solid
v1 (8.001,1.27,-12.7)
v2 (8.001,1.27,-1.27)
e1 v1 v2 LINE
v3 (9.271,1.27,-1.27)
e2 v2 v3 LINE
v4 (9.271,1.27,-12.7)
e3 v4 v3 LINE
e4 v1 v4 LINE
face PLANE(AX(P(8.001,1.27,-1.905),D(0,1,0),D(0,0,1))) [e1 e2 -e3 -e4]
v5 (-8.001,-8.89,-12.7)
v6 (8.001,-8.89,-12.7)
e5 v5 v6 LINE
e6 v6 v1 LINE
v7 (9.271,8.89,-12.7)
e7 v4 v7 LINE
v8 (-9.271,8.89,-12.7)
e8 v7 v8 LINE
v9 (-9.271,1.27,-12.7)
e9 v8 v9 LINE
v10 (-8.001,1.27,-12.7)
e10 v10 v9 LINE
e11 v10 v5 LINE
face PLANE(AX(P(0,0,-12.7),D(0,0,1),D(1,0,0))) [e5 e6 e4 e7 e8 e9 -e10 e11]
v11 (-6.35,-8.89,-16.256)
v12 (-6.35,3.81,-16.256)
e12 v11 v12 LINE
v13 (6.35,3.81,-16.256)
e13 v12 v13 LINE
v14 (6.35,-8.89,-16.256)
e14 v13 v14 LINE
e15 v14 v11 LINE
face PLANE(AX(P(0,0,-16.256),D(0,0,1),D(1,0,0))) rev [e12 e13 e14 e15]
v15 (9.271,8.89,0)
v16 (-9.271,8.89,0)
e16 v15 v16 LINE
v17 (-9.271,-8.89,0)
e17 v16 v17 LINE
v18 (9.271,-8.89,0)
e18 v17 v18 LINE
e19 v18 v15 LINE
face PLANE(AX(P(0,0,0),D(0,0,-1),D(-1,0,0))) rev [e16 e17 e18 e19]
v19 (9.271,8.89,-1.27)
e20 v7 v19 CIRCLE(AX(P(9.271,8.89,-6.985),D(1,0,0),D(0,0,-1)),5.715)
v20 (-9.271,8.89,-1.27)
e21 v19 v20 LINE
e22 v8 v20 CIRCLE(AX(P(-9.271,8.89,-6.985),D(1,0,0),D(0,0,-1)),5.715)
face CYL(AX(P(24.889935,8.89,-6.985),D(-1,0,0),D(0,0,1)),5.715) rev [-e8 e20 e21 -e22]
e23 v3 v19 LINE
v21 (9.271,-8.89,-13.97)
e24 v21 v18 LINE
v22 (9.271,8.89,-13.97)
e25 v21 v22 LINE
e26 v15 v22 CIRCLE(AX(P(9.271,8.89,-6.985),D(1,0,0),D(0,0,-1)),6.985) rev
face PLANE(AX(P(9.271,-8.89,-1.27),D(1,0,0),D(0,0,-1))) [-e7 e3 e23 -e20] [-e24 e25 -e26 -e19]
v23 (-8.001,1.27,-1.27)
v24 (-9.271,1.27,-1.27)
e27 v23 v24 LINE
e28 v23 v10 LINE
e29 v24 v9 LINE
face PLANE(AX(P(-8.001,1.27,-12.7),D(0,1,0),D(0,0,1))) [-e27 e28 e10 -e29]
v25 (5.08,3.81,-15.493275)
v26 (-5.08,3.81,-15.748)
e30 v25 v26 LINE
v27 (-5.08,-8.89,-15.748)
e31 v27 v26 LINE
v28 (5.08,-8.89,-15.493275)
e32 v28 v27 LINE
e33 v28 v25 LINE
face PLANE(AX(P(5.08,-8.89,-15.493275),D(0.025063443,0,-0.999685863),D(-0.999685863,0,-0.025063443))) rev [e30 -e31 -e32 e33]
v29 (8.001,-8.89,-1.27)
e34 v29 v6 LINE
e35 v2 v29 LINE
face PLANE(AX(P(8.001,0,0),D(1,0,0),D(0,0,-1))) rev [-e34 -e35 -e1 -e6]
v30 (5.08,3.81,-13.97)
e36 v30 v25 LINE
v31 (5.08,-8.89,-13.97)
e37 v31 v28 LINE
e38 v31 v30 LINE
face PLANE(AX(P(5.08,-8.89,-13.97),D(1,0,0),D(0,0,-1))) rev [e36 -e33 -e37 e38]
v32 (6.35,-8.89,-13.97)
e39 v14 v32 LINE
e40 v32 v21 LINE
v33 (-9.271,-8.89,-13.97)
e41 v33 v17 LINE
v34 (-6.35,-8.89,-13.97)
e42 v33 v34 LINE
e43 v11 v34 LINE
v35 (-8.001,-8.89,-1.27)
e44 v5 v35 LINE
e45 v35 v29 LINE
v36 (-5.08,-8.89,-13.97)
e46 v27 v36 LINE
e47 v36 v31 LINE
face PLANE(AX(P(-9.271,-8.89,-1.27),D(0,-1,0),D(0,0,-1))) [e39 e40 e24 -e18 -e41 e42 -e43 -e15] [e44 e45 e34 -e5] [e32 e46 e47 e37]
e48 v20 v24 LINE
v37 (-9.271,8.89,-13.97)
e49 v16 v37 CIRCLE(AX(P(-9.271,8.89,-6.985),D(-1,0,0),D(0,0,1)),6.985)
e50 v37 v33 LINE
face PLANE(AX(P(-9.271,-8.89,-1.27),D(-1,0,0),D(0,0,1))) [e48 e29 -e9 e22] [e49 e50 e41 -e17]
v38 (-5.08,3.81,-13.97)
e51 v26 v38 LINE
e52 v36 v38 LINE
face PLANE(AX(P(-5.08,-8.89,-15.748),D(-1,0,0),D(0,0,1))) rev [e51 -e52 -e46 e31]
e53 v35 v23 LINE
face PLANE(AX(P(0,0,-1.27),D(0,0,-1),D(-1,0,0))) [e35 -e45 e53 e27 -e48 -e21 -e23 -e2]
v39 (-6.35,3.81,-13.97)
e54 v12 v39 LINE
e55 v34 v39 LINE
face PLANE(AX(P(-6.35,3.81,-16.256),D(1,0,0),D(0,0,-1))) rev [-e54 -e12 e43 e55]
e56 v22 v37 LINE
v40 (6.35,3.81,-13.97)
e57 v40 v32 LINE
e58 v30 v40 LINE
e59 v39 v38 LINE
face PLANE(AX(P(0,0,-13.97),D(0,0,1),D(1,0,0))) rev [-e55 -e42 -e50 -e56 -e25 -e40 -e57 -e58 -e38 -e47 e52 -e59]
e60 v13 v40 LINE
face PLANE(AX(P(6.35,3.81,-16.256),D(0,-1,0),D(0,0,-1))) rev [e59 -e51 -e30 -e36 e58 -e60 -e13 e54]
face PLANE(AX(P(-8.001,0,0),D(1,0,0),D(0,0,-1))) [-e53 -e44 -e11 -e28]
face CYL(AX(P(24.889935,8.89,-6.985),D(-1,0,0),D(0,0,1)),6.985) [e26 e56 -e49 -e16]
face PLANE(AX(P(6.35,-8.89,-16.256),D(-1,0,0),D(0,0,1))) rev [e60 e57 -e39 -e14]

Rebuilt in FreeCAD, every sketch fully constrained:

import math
import FreeCAD as App
import Part
import Sketcher

V = App.Vector
Q = App.Units.Quantity


def add_polygon(sketch, points):
    """Adds a closed chain of lines whose ends are joined by coincident constraints."""
    first, n = sketch.GeometryCount, len(points)
    for a, b in zip(points, points[1:] + points[:1]):
        sketch.addGeometry(Part.LineSegment(App.Vector(*a, 0), App.Vector(*b, 0)), False)
    for i in range(n):
        sketch.addConstraint(Sketcher.Constraint("Coincident", first + i, 2, first + (i + 1) % n, 1))

doc = App.newDocument("Part")
params = doc.addObject("Spreadsheet::Sheet", "Params")
for row, (alias, value) in enumerate([
    ("sketch1_height", "0.7 in"),
    ("sketch1_width", "0.73 in"),
    ("pad1_length", "0.05 in"),
    ("sketch2_height", "0.7 in"),
    ("sketch2_width", "0.73 in"),
    ("pad2_length", "0.05 in"),
    ("sketch3_radius", "0.225 in"),
    ("sketch3_radius2", "0.275 in"),
    ("pad3_length", "0.73 in"),
    ("sketch4_width", "0.4 in"),
    ("sketch4_height", "0.45 in"),
    ("pad4_length", "0.05 in"),
    ("sketch5_width", "0.5 in"),
    ("pad5_length", "0.09 in"),
    ("sketch6_width", "0.4 in"),
    ("sketch6_height", "0.07 in"),
    ("sketch7_width", "0.4 in"),
    ("sketch7_height", "0.45 in"),
    ("pad6_length", "0.05 in"),
], start=1):
    params.set(f"A{row}", alias)
    params.set(f"B{row}", "=" + value)
    params.setAlias(f"B{row}", alias)

body = doc.addObject("PartDesign::Body", "Body")

# Sketch on XY plane
sketch1 = body.newObject("Sketcher::SketchObject", "Sketch")
sketch1.AttachmentSupport = (doc.getObject("XY_Plane"), [""])
sketch1.MapMode = "FlatFace"
add_polygon(sketch1, [(-9, 9), (-9, -9), (9, -9), (9, 9)])  # lines 0-3
sketch1.addConstraint([
    Sketcher.Constraint("Vertical", 0),
    Sketcher.Constraint("Horizontal", 1),
    Sketcher.Constraint("Vertical", 2),
    Sketcher.Constraint("Horizontal", 3),
    Sketcher.Constraint("Symmetric", 0, 2, 2, 2, -1, 1),
    Sketcher.Constraint("DistanceY", 0, 2, 0, 1, Q("0.7 in")),
    Sketcher.Constraint("DistanceX", 1, 1, 1, 2, Q("0.73 in")),
])
sketch1.setExpression("Constraints[9]", "Params.sketch1_height")
sketch1.setExpression("Constraints[10]", "Params.sketch1_width")
pad1 = body.newObject("PartDesign::Pad", "Pad")
pad1.Profile = sketch1
pad1.setExpression("Length", "Params.pad1_length")
pad1.Reversed = True
body2 = doc.addObject("PartDesign::Body", "Body001")

# Sketch on XY plane
sketch2 = body2.newObject("Sketcher::SketchObject", "Sketch001")
sketch2.AttachmentSupport = (doc.getObject("XY_Plane001"), [""])
sketch2.MapMode = "FlatFace"
sketch2.AttachmentOffset = App.Placement(V(0, 0, -0.55 * 25.4), App.Rotation())
add_polygon(sketch2, [(-9, 9), (-9, -9), (9, -9), (9, 9)])  # lines 0-3
sketch2.addConstraint([
    Sketcher.Constraint("Vertical", 0),
    Sketcher.Constraint("Horizontal", 1),
    Sketcher.Constraint("Vertical", 2),
    Sketcher.Constraint("Horizontal", 3),
    Sketcher.Constraint("Symmetric", 0, 2, 2, 2, -1, 1),
    Sketcher.Constraint("DistanceY", 0, 2, 0, 1, Q("0.7 in")),
    Sketcher.Constraint("DistanceX", 1, 1, 1, 2, Q("0.73 in")),
])
sketch2.setExpression("Constraints[9]", "Params.sketch2_height")
sketch2.setExpression("Constraints[10]", "Params.sketch2_width")
pad2 = body2.newObject("PartDesign::Pad", "Pad001")
pad2.Profile = sketch2
pad2.setExpression("Length", "Params.pad2_length")
body.AllowCompound = True
doc.recompute()

boolean = body.newObject("PartDesign::Boolean", "Boolean")
boolean.Type = "Fuse"
boolean.addObjects([body2])

# Sketch on YZ plane
sketch3 = body.newObject("Sketcher::SketchObject", "Sketch002")
sketch3.AttachmentSupport = (doc.getObject("YZ_Plane"), [""])
sketch3.MapMode = "FlatFace"
sketch3.AttachmentOffset = App.Placement(V(0, 0, -0.365 * 25.4), App.Rotation())
sketch3.addGeometry([
    Part.LineSegment(V(8.9, -14, 0), V(8.9, -12.7, 0)),
    Part.ArcOfCircle(Part.Circle(V(8.9, -7, 0), V(0, 0, 1), 5.7), math.radians(-90), math.radians(90)),
    Part.LineSegment(V(8.9, -1.3, 0), V(8.9, 0, 0)),
    Part.ArcOfCircle(Part.Circle(V(8.9, -7, 0), V(0, 0, 1), 7), math.radians(-90), math.radians(90)),
], False)
sketch3.addConstraint([
    Sketcher.Constraint("Coincident", 0, 2, 1, 1),
    Sketcher.Constraint("Coincident", 1, 2, 2, 1),
    Sketcher.Constraint("Coincident", 2, 2, 3, 2),
    Sketcher.Constraint("Coincident", 3, 1, 0, 1),
    Sketcher.Constraint("Vertical", 0),
    Sketcher.Constraint("Vertical", 2),
    Sketcher.Constraint("Coincident", 3, 3, 1, 3),
    Sketcher.Constraint("PointOnObject", 2, 2, -1),
    Sketcher.Constraint("Vertical", 3, 3, 0, 2),
    Sketcher.Constraint("Vertical", 0, 2, 1, 2),
    Sketcher.Constraint("Radius", 1, Q("0.225 in")),
    Sketcher.Constraint("Radius", 3, Q("0.275 in")),
    Sketcher.Constraint("DistanceX", -1, 1, 1, 3, Q("0.35 in")),
])
sketch3.setExpression("Constraints[10]", "Params.sketch3_radius")
sketch3.setExpression("Constraints[11]", "Params.sketch3_radius2")
pad3 = body.newObject("PartDesign::Pad", "Pad002")
pad3.Profile = sketch3
pad3.setExpression("Length", "Params.pad3_length")

# Sketch on YZ plane
sketch4 = body.newObject("Sketcher::SketchObject", "Sketch003")
sketch4.AttachmentSupport = (doc.getObject("YZ_Plane"), [""])
sketch4.MapMode = "FlatFace"
sketch4.AttachmentOffset = App.Placement(V(0, 0, -0.365 * 25.4), App.Rotation())
add_polygon(sketch4, [(1, -13), (-9, -13), (-9, -1), (1, -1)])  # lines 0-3
sketch4.addConstraint([
    Sketcher.Constraint("Horizontal", 0),
    Sketcher.Constraint("Vertical", 1),
    Sketcher.Constraint("Horizontal", 2),
    Sketcher.Constraint("Vertical", 3),
    Sketcher.Constraint("DistanceX", 0, 2, 0, 1, Q("0.4 in")),
    Sketcher.Constraint("DistanceY", 1, 1, 1, 2, Q("0.45 in")),
    Sketcher.Constraint("DistanceY", 0, 2, -1, 1, Q("0.5 in")),
    Sketcher.Constraint("DistanceX", 0, 2, -1, 1, Q("0.35 in")),
])
sketch4.setExpression("Constraints[8]", "Params.sketch4_width")
sketch4.setExpression("Constraints[9]", "Params.sketch4_height")
pad4 = body.newObject("PartDesign::Pad", "Pad003")
pad4.Profile = sketch4
pad4.setExpression("Length", "Params.pad4_length")

# Sketch on XY plane
sketch5 = body.newObject("Sketcher::SketchObject", "Sketch004")
sketch5.AttachmentSupport = (doc.getObject("XY_Plane"), [""])
sketch5.MapMode = "FlatFace"
sketch5.AttachmentOffset = App.Placement(V(0, 0, -0.55 * 25.4), App.Rotation())
add_polygon(sketch5, [(6, 4), (6, -9), (-6, -9), (-6, 4)])  # lines 0-3
sketch5.addConstraint([
    Sketcher.Constraint("Vertical", 0),
    Sketcher.Constraint("Horizontal", 1),
    Sketcher.Constraint("Vertical", 2),
    Sketcher.Constraint("Horizontal", 3),
    Sketcher.Constraint("Equal", 3, 0),
    Sketcher.Constraint("DistanceX", 1, 2, 1, 1, Q("0.5 in")),
    Sketcher.Constraint("DistanceX", -1, 1, 0, 2, Q("0.25 in")),
    Sketcher.Constraint("DistanceY", 0, 2, -1, 1, Q("0.35 in")),
])
sketch5.setExpression("Constraints[9]", "Params.sketch5_width")
pad5 = body.newObject("PartDesign::Pad", "Pad004")
pad5.Profile = sketch5
pad5.setExpression("Length", "Params.pad5_length")
pad5.Reversed = True

# Sketch on XZ plane
sketch6 = body.newObject("Sketcher::SketchObject", "Sketch005")
sketch6.AttachmentSupport = (doc.getObject("XZ_Plane"), [""])
sketch6.MapMode = "FlatFace"
sketch6.AttachmentOffset = App.Placement(V(0, 0, -0.15 * 25.4), App.Rotation())
add_polygon(sketch6, [(-5.1, -14), (5.1, -14), (5.1, -15.5), (-5.1, -15.7)])  # lines 0-3
sketch6.addConstraint([
    Sketcher.Constraint("Horizontal", 0),
    Sketcher.Constraint("Vertical", 1),
    Sketcher.Constraint("Vertical", 3),
    Sketcher.Constraint("DistanceX", 0, 1, 0, 2, Q("0.4 in")),
    Sketcher.Constraint("DistanceY", 3, 1, 3, 2, Q("0.07 in")),
    Sketcher.Constraint("DistanceX", -1, 1, 0, 2, Q("0.2 in")),
    Sketcher.Constraint("DistanceY", 0, 2, -1, 1, Q("0.55 in")),
    Sketcher.Constraint("DistanceY", 1, 2, 1, 1, Q("1.523275 mm")),
])
sketch6.setExpression("Constraints[7]", "Params.sketch6_width")
sketch6.setExpression("Constraints[8]", "Params.sketch6_height")
pocket1 = body.newObject("PartDesign::Pocket", "Pocket")
pocket1.Profile = sketch6
pocket1.Type = "ThroughAll"
pocket1.Reversed = True

# Sketch on YZ plane
sketch7 = body.newObject("Sketcher::SketchObject", "Sketch006")
sketch7.AttachmentSupport = (doc.getObject("YZ_Plane"), [""])
sketch7.MapMode = "FlatFace"
sketch7.AttachmentOffset = App.Placement(V(0, 0, 0.365 * 25.4), App.Rotation())
add_polygon(sketch7, [(1, -1), (-9, -1), (-9, -13), (1, -13)])  # lines 0-3
sketch7.addConstraint([
    Sketcher.Constraint("Horizontal", 0),
    Sketcher.Constraint("Vertical", 1),
    Sketcher.Constraint("Horizontal", 2),
    Sketcher.Constraint("Vertical", 3),
    Sketcher.Constraint("DistanceX", 0, 2, 0, 1, Q("0.4 in")),
    Sketcher.Constraint("DistanceY", 1, 2, 1, 1, Q("0.45 in")),
    Sketcher.Constraint("DistanceY", 1, 2, -1, 1, Q("0.5 in")),
    Sketcher.Constraint("DistanceX", 0, 2, -1, 1, Q("0.35 in")),
])
sketch7.setExpression("Constraints[8]", "Params.sketch7_width")
sketch7.setExpression("Constraints[9]", "Params.sketch7_height")
pad6 = body.newObject("PartDesign::Pad", "Pad005")
pad6.Profile = sketch7
pad6.setExpression("Length", "Params.pad6_length")
pad6.Reversed = True

doc.recompute()
